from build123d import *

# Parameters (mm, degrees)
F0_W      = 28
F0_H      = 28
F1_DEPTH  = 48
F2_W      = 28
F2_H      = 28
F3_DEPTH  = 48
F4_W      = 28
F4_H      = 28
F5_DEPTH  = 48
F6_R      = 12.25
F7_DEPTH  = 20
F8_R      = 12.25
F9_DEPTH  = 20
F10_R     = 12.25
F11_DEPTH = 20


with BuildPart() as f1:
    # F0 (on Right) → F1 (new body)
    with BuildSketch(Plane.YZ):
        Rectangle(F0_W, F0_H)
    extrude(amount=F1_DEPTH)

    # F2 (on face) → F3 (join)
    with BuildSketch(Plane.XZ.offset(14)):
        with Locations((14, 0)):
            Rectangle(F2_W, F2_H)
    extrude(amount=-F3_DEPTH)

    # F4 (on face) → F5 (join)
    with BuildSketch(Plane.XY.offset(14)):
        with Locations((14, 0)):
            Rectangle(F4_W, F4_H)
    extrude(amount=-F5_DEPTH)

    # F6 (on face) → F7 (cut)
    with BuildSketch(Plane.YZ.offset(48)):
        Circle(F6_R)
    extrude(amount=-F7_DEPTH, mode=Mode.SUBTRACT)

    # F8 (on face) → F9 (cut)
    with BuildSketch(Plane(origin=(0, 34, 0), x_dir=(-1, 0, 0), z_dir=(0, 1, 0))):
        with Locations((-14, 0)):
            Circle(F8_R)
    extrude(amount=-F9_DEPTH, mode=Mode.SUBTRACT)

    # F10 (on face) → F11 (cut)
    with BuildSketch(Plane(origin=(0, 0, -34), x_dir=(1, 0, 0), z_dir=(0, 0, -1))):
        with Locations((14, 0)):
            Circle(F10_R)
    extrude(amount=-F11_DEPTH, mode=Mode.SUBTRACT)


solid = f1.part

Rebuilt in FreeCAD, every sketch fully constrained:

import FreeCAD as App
import Part
import Sketcher

doc = App.newDocument("Part")
params = doc.addObject("Spreadsheet::Sheet", "Params")
for row, (alias, value) in enumerate([
    ("sketch1_width", "28 mm"),
    ("pad1_length", "48 mm"),
    ("sketch2_width", "28 mm"),
    ("pad2_length", "48 mm"),
    ("sketch3_width", "28 mm"),
    ("pad3_length", "48 mm"),
    ("sketch4_diameter", "24.5 mm"),
    ("pocket1_length", "20 mm"),
    ("sketch5_diameter", "24.5 mm"),
    ("pocket2_length", "20 mm"),
    ("sketch6_diameter", "24.5 mm"),
    ("pocket3_length", "20 mm"),
], start=1):
    params.set(f"A{row}", alias)
    params.set(f"B{row}", "=" + value)
    params.setAlias(f"B{row}", alias)

body = doc.addObject("PartDesign::Body", "Body")

sketch1 = body.newObject("Sketcher::SketchObject", "Sketch")
sketch1.AttachmentSupport = (doc.getObject("YZ_Plane"), [""])
sketch1.MapMode = "FlatFace"
sketch1.addGeometry([
    Part.LineSegment(App.Vector(-14, 14, 0), App.Vector(-14, -14, 0)),
    Part.LineSegment(App.Vector(-14, -14, 0), App.Vector(14, -14, 0)),
    Part.LineSegment(App.Vector(14, -14, 0), App.Vector(14, 14, 0)),
    Part.LineSegment(App.Vector(14, 14, 0), App.Vector(-14, 14, 0)),
], False)
sketch1.addConstraint([
    Sketcher.Constraint("Coincident", 0, 2, 1, 1),
    Sketcher.Constraint("Coincident", 1, 2, 2, 1),
    Sketcher.Constraint("Coincident", 2, 2, 3, 1),
    Sketcher.Constraint("Coincident", 3, 2, 0, 1),
    Sketcher.Constraint("Vertical", 0),
    Sketcher.Constraint("Horizontal", 1),
    Sketcher.Constraint("Vertical", 2),
    Sketcher.Constraint("Horizontal", 3),
    Sketcher.Constraint("Symmetric", 0, 2, 2, 2, -1, 1),
    Sketcher.Constraint("Equal", 3, 0),
    Sketcher.Constraint("DistanceX", 1, 1, 1, 2, 28.0),
])
sketch1.setExpression("Constraints[10]", "Params.sketch1_width")
pad1 = body.newObject("PartDesign::Pad", "Pad")
pad1.Profile = sketch1
pad1.setExpression("Length", "Params.pad1_length")

sketch2 = body.newObject("Sketcher::SketchObject", "Sketch001")
sketch2.AttachmentSupport = (doc.getObject("XZ_Plane"), [""])
sketch2.MapMode = "FlatFace"
sketch2.AttachmentOffset = App.Placement(App.Vector(0, 0, 14), App.Rotation())
sketch2.addGeometry([
    Part.LineSegment(App.Vector(0, 14, 0), App.Vector(0, -14, 0)),
    Part.LineSegment(App.Vector(0, -14, 0), App.Vector(28, -14, 0)),
    Part.LineSegment(App.Vector(28, -14, 0), App.Vector(28, 14, 0)),
    Part.LineSegment(App.Vector(28, 14, 0), App.Vector(0, 14, 0)),
], False)
sketch2.addConstraint([
    Sketcher.Constraint("Coincident", 0, 2, 1, 1),
    Sketcher.Constraint("Coincident", 1, 2, 2, 1),
    Sketcher.Constraint("Coincident", 2, 2, 3, 1),
    Sketcher.Constraint("Coincident", 3, 2, 0, 1),
    Sketcher.Constraint("Vertical", 0),
    Sketcher.Constraint("Horizontal", 1),
    Sketcher.Constraint("Vertical", 2),
    Sketcher.Constraint("Horizontal", 3),
    Sketcher.Constraint("Symmetric", 0, 2, 3, 2, -1, 1),
    Sketcher.Constraint("Equal", 3, 0),
    Sketcher.Constraint("DistanceX", 1, 1, 1, 2, 28.0),
])
sketch2.setExpression("Constraints[10]", "Params.sketch2_width")
pad2 = body.newObject("PartDesign::Pad", "Pad001")
pad2.Profile = sketch2
pad2.setExpression("Length", "Params.pad2_length")
pad2.Reversed = True

sketch3 = body.newObject("Sketcher::SketchObject", "Sketch002")
sketch3.AttachmentSupport = (doc.getObject("XY_Plane"), [""])
sketch3.MapMode = "FlatFace"
sketch3.AttachmentOffset = App.Placement(App.Vector(0, 0, 14), App.Rotation())
sketch3.addGeometry([
    Part.LineSegment(App.Vector(0, 14, 0), App.Vector(0, -14, 0)),
    Part.LineSegment(App.Vector(0, -14, 0), App.Vector(28, -14, 0)),
    Part.LineSegment(App.Vector(28, -14, 0), App.Vector(28, 14, 0)),
    Part.LineSegment(App.Vector(28, 14, 0), App.Vector(0, 14, 0)),
], False)
sketch3.addConstraint([
    Sketcher.Constraint("Coincident", 0, 2, 1, 1),
    Sketcher.Constraint("Coincident", 1, 2, 2, 1),
    Sketcher.Constraint("Coincident", 2, 2, 3, 1),
    Sketcher.Constraint("Coincident", 3, 2, 0, 1),
    Sketcher.Constraint("Vertical", 0),
    Sketcher.Constraint("Horizontal", 1),
    Sketcher.Constraint("Vertical", 2),
    Sketcher.Constraint("Horizontal", 3),
    Sketcher.Constraint("Symmetric", 0, 2, 3, 2, -1, 1),
    Sketcher.Constraint("Equal", 3, 0),
    Sketcher.Constraint("DistanceX", 1, 1, 1, 2, 28.0),
])
sketch3.setExpression("Constraints[10]", "Params.sketch3_width")
pad3 = body.newObject("PartDesign::Pad", "Pad002")
pad3.Profile = sketch3
pad3.setExpression("Length", "Params.pad3_length")
pad3.Reversed = True

sketch4 = body.newObject("Sketcher::SketchObject", "Sketch003")
sketch4.AttachmentSupport = (doc.getObject("YZ_Plane"), [""])
sketch4.MapMode = "FlatFace"
sketch4.AttachmentOffset = App.Placement(App.Vector(0, 0, 48), App.Rotation())
sketch4.addGeometry(Part.Circle(App.Vector(0, 0, 0), App.Vector(0, 0, 1), 12), False)
sketch4.addConstraint([
    Sketcher.Constraint("Coincident", 0, 3, -1, 1),
    Sketcher.Constraint("Diameter", 0, 24.5),
])
sketch4.setExpression("Constraints[1]", "Params.sketch4_diameter")
pocket1 = body.newObject("PartDesign::Pocket", "Pocket")
pocket1.Profile = sketch4
pocket1.setExpression("Length", "Params.pocket1_length")

sketch5 = body.newObject("Sketcher::SketchObject", "Sketch004")
sketch5.AttachmentSupport = (doc.getObject("XZ_Plane"), [""])
sketch5.MapMode = "FlatFace"
sketch5.AttachmentOffset = App.Placement(App.Vector(0, 0, -34), App.Rotation())
sketch5.addGeometry(Part.Circle(App.Vector(14, 0, 0), App.Vector(0, 0, 1), 12), False)
sketch5.addConstraint([
    Sketcher.Constraint("PointOnObject", 0, 3, -1),
    Sketcher.Constraint("Diameter", 0, 24.5),
    Sketcher.Constraint("DistanceX", -1, 1, 0, 3, 14.0),
])
sketch5.setExpression("Constraints[1]", "Params.sketch5_diameter")
pocket2 = body.newObject("PartDesign::Pocket", "Pocket001")
pocket2.Profile = sketch5
pocket2.setExpression("Length", "Params.pocket2_length")
pocket2.Reversed = True

sketch6 = body.newObject("Sketcher::SketchObject", "Sketch005")
sketch6.AttachmentSupport = (doc.getObject("XY_Plane"), [""])
sketch6.MapMode = "FlatFace"
sketch6.AttachmentOffset = App.Placement(App.Vector(0, 0, -34), App.Rotation())
sketch6.addGeometry(Part.Circle(App.Vector(14, 0, 0), App.Vector(0, 0, 1), 12), False)
sketch6.addConstraint([
    Sketcher.Constraint("PointOnObject", 0, 3, -1),
    Sketcher.Constraint("Diameter", 0, 24.5),
    Sketcher.Constraint("DistanceX", -1, 1, 0, 3, 14.0),
])
sketch6.setExpression("Constraints[1]", "Params.sketch6_diameter")
pocket3 = body.newObject("PartDesign::Pocket", "Pocket002")
pocket3.Profile = sketch6
pocket3.setExpression("Length", "Params.pocket3_length")
pocket3.Reversed = True

doc.recompute()
